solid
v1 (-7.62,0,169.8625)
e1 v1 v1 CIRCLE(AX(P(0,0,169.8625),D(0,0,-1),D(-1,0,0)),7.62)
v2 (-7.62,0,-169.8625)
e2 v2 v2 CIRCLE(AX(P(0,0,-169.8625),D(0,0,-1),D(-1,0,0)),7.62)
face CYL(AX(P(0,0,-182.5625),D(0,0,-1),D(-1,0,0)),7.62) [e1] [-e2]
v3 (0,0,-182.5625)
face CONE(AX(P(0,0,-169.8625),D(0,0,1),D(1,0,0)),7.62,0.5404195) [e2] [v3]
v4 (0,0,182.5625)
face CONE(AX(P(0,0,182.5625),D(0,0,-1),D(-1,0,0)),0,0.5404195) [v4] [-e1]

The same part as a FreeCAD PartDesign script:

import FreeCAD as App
import Part
import Sketcher
Q = App.Units.Quantity


def add_polygon(sketch, points):
    """Adds a closed chain of lines whose ends are joined by coincident constraints."""
    first, n = sketch.GeometryCount, len(points)
    for a, b in zip(points, points[1:] + points[:1]):
        sketch.addGeometry(Part.LineSegment(App.Vector(*a, 0), App.Vector(*b, 0)), False)
    for i in range(n):
        sketch.addConstraint(Sketcher.Constraint("Coincident", first + i, 2, first + (i + 1) % n, 1))

doc = App.newDocument("Part")
body = doc.addObject("PartDesign::Body", "Body")

sketch1 = body.newObject("Sketcher::SketchObject", "Sketch")
sketch1.AttachmentSupport = (doc.getObject("XZ_Plane"), [""])
sketch1.MapMode = "FlatFace"
add_polygon(sketch1, [(0, -182.5625), (0, 182.5625), (7.62, 169.8625), (7.62, -169.8625)])
sketch1.addConstraint([
    Sketcher.Constraint("Vertical", 0),
    Sketcher.Constraint("Vertical", 2),
    Sketcher.Constraint("Symmetric", 0, 2, 3, 2, -1, 1),
    Sketcher.Constraint("Equal", 1, 3),
    Sketcher.Constraint("DistanceX", -1, 1, 1, 2, Q("0.3 in")),
    Sketcher.Constraint("DistanceY", 1, 2, 0, 2, Q("0.5 in")),
    Sketcher.Constraint("DistanceY", 0, 1, 0, 2, Q("14.375 in")),
])
revolution = body.newObject("PartDesign::Revolution", "Revolution")
revolution.Profile = sketch1
revolution.ReferenceAxis = (sketch1, ["V_Axis"])
revolution.Angle = 360

doc.recompute()
